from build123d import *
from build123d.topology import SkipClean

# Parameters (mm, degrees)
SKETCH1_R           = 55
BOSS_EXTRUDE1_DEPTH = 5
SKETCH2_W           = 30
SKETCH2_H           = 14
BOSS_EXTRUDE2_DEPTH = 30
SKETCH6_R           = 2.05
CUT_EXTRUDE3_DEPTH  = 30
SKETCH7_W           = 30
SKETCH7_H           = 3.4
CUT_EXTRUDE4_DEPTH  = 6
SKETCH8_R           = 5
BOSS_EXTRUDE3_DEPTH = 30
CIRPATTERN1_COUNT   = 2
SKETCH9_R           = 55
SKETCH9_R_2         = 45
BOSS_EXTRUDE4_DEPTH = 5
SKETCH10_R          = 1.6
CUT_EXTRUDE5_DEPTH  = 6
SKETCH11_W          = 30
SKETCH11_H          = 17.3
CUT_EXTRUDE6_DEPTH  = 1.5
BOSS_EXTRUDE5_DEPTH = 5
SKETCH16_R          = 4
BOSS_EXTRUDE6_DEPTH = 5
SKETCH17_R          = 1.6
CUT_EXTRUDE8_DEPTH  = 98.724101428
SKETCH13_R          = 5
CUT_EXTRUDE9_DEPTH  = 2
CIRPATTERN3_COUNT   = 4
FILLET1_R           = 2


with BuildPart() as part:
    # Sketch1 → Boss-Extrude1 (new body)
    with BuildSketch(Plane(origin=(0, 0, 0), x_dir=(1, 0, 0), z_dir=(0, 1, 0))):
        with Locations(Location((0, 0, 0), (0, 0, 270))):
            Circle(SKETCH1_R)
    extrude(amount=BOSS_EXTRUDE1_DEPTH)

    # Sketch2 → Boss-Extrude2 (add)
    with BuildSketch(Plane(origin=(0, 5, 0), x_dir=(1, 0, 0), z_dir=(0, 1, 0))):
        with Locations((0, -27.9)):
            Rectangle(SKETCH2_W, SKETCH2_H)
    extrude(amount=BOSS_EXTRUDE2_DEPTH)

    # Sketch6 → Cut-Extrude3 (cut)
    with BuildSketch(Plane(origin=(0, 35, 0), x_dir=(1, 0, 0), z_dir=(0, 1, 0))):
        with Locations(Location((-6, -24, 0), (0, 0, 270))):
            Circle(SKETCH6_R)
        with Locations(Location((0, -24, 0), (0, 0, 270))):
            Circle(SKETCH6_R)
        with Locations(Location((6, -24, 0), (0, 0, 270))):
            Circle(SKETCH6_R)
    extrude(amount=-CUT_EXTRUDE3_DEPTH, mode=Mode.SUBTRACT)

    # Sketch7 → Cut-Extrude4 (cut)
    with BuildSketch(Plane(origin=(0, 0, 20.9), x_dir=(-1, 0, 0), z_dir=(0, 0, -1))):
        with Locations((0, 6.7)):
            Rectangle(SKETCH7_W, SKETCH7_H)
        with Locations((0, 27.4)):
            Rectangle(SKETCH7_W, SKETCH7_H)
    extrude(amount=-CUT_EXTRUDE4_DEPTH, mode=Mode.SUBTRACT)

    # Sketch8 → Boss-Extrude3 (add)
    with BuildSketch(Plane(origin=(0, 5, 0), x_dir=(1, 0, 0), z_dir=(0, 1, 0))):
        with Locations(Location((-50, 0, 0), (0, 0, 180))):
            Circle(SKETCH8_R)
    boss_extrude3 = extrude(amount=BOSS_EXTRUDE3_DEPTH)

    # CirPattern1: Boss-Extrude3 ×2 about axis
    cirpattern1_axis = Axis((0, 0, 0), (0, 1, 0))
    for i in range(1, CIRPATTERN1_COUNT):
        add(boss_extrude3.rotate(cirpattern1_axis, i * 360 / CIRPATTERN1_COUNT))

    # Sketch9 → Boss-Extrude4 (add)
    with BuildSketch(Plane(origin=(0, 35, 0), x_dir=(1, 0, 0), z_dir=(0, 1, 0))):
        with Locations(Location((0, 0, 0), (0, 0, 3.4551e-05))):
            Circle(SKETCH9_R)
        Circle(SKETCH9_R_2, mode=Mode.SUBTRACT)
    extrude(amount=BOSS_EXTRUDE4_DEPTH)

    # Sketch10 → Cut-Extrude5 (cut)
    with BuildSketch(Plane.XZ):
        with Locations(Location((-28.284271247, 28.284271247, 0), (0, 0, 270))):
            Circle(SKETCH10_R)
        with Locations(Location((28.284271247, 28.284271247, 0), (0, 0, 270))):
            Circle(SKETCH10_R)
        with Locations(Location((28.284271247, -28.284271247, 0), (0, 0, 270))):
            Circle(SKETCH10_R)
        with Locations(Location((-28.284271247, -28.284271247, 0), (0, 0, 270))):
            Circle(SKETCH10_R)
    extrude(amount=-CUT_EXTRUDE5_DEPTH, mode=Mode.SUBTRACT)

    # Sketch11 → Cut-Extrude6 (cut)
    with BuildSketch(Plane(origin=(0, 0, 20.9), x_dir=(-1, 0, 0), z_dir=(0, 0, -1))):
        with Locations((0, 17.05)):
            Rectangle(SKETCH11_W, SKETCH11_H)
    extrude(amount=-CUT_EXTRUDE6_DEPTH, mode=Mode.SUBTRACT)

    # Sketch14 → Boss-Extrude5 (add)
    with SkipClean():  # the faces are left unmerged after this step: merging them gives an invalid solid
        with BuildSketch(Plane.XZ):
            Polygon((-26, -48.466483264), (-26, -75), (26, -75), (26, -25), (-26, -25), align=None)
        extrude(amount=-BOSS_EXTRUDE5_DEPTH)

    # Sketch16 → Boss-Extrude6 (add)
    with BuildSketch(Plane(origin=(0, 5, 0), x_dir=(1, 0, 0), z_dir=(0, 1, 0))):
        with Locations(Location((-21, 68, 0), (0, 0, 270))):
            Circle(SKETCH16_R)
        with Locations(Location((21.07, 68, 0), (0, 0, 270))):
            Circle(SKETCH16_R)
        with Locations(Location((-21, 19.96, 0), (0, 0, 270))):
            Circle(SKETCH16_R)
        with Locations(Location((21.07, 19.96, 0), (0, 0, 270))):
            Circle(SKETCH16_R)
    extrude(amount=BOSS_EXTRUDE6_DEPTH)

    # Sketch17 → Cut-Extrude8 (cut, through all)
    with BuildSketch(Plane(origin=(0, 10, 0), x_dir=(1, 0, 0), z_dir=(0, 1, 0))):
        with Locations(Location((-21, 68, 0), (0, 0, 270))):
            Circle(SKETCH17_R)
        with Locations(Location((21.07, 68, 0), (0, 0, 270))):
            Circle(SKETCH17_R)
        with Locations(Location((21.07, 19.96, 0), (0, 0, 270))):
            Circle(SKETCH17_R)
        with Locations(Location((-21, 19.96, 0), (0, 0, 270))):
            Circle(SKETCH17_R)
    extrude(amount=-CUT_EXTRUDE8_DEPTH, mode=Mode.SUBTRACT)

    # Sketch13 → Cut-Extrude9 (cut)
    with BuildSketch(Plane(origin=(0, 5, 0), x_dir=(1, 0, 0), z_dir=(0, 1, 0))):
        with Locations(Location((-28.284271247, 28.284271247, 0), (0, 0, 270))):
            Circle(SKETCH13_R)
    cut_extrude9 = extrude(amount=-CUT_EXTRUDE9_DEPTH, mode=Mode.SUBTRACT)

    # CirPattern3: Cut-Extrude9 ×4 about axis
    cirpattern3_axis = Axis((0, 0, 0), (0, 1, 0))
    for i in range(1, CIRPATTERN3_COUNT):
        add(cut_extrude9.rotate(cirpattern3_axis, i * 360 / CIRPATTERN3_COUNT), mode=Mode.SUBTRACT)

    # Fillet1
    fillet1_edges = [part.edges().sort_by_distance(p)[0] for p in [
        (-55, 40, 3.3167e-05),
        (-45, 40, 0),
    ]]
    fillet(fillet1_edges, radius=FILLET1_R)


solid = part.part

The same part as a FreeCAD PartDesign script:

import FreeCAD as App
import Part
import Sketcher


def edges_at(feature, points):
    """Names of the edges that pass closest to the given points."""
    edges = feature.Shape.Edges
    near = lambda p: min(range(len(edges)), key=lambda i: edges[i].distToShape(Part.Vertex(*p))[0])
    return sorted({f"Edge{near(p) + 1}" for p in points})


def add_polygon(sketch, points):
    """Adds a closed chain of lines whose ends are joined by coincident constraints."""
    first, n = sketch.GeometryCount, len(points)
    for a, b in zip(points, points[1:] + points[:1]):
        sketch.addGeometry(Part.LineSegment(App.Vector(*a, 0), App.Vector(*b, 0)), False)
    for i in range(n):
        sketch.addConstraint(Sketcher.Constraint("Coincident", first + i, 2, first + (i + 1) % n, 1))

doc = App.newDocument("Part")
body = doc.addObject("PartDesign::Body", "Body")

sketch1 = doc.addObject("Sketcher::SketchObject", "Sketch")
body.addObject(sketch1)
sketch1.AttachmentSupport = (doc.XZ_Plane, [""])
sketch1.MapMode = "FlatFace"
sketch1.addGeometry(Part.Circle(App.Vector(0, 0, 0), App.Vector(0, 0, 1), 55), False)
sketch1.addConstraint([
    Sketcher.Constraint("Coincident", 0, 3, -1, 1),
    Sketcher.Constraint("Diameter", 0, 110.0),
])
pad1 = doc.addObject("PartDesign::Pad", "Pad")
body.addObject(pad1)
pad1.Profile = sketch1
pad1.Length = 5
pad1.Reversed = True

sketch2 = doc.addObject("Sketcher::SketchObject", "Sketch001")
body.addObject(sketch2)
sketch2.AttachmentSupport = (doc.XZ_Plane, [""])
sketch2.MapMode = "FlatFace"
sketch2.AttachmentOffset = App.Placement(App.Vector(0, 0, -5), App.Rotation())
add_polygon(sketch2, [(-15, 21), (-15, 35), (15, 35), (15, 21)])
sketch2.addConstraint([
    Sketcher.Constraint("Vertical", 0),
    Sketcher.Constraint("Horizontal", 1),
    Sketcher.Constraint("Vertical", 2),
    Sketcher.Constraint("Horizontal", 3),
    Sketcher.Constraint("DistanceX", 1, 1, 1, 2, 30.0),
    Sketcher.Constraint("DistanceY", 0, 1, 0, 2, 14.0),
    Sketcher.Constraint("DistanceX", 0, 2, -1, 1, 15.0),
    Sketcher.Constraint("DistanceY", -1, 1, 0, 2, 34.9),
])
pad2 = doc.addObject("PartDesign::Pad", "Pad001")
body.addObject(pad2)
pad2.Profile = sketch2
pad2.Length = 30
pad2.Reversed = True

sketch3 = doc.addObject("Sketcher::SketchObject", "Sketch002")
body.addObject(sketch3)
sketch3.AttachmentSupport = (doc.XZ_Plane, [""])
sketch3.MapMode = "FlatFace"
sketch3.AttachmentOffset = App.Placement(App.Vector(0, 0, -35), App.Rotation())
sketch3.addGeometry([
    Part.Circle(App.Vector(-6, 24, 0), App.Vector(0, 0, 1), 2),
    Part.Circle(App.Vector(0, 24, 0), App.Vector(0, 0, 1), 2),
    Part.Circle(App.Vector(6, 24, 0), App.Vector(0, 0, 1), 2),
], False)
sketch3.addConstraint([
    Sketcher.Constraint("Equal", 0, 1),
    Sketcher.Constraint("Equal", 1, 2),
    Sketcher.Constraint("Symmetric", 0, 3, 2, 3, -2),
    Sketcher.Constraint("PointOnObject", 1, 3, -2),
    Sketcher.Constraint("Horizontal", 0, 3, 1, 3),
    Sketcher.Constraint("Diameter", 0, 4.1),
    Sketcher.Constraint("DistanceX", 0, 3, -1, 1, 6.0),
    Sketcher.Constraint("DistanceY", -1, 1, 0, 3, 24.0),
])
pocket1 = doc.addObject("PartDesign::Pocket", "Pocket")
body.addObject(pocket1)
pocket1.Profile = sketch3
pocket1.Length = 30
pocket1.Reversed = True

sketch4 = doc.addObject("Sketcher::SketchObject", "Sketch003")
body.addObject(sketch4)
sketch4.AttachmentSupport = (doc.XY_Plane, [""])
sketch4.MapMode = "FlatFace"
sketch4.AttachmentOffset = App.Placement(App.Vector(0, 0, 20.9), App.Rotation())
add_polygon(sketch4, [(15, 8.4), (15, 5), (-15, 5), (-15, 8.4)])
add_polygon(sketch4, [(15, 29.1), (15, 25.7), (-15, 25.7), (-15, 29.1)])
sketch4.addConstraint([
    Sketcher.Constraint("Vertical", 0),
    Sketcher.Constraint("Horizontal", 1),
    Sketcher.Constraint("Vertical", 2),
    Sketcher.Constraint("Horizontal", 3),
    Sketcher.Constraint("Vertical", 4),
    Sketcher.Constraint("Horizontal", 5),
    Sketcher.Constraint("Vertical", 6),
    Sketcher.Constraint("Horizontal", 7),
    Sketcher.Constraint("Vertical", 3, 2, 4, 2),
    Sketcher.Constraint("Vertical", 2, 2, 5, 2),
    Sketcher.Constraint("Equal", 2, 4),
    Sketcher.Constraint("DistanceX", 1, 2, 1, 1, 30.0),
    Sketcher.Constraint("DistanceY", 0, 2, 0, 1, 3.4),
    Sketcher.Constraint("DistanceX", -1, 1, 0, 2, 15.0),
    Sketcher.Constraint("DistanceY", -1, 1, 0, 2, 5.0),
    Sketcher.Constraint("DistanceY", -1, 1, 4, 2, 25.7),
])
pocket2 = doc.addObject("PartDesign::Pocket", "Pocket001")
body.addObject(pocket2)
pocket2.Profile = sketch4
pocket2.Length = 6
pocket2.Reversed = True

sketch5 = doc.addObject("Sketcher::SketchObject", "Sketch004")
body.addObject(sketch5)
sketch5.AttachmentSupport = (doc.XZ_Plane, [""])
sketch5.MapMode = "FlatFace"
sketch5.AttachmentOffset = App.Placement(App.Vector(0, 0, -5), App.Rotation())
sketch5.addGeometry(Part.Circle(App.Vector(-50, 0, 0), App.Vector(0, 0, 1), 5), False)
sketch5.addConstraint([
    Sketcher.Constraint("PointOnObject", 0, 3, -1),
    Sketcher.Constraint("Diameter", 0, 10.0),
    Sketcher.Constraint("DistanceX", 0, 3, -1, 1, 50.0),
])
pad3 = doc.addObject("PartDesign::Pad", "Pad002")
body.addObject(pad3)
pad3.Profile = sketch5
pad3.Length = 30
pad3.Reversed = True
doc.recompute()

polarpattern = doc.addObject("PartDesign::PolarPattern", "PolarPattern")
body.addObject(polarpattern)
polarpattern.Originals = [pad3]
polarpattern.Axis = (doc.Y_Axis, [""])
polarpattern.Angle = 360
polarpattern.Occurrences = 2
body.Tip = polarpattern

sketch6 = doc.addObject("Sketcher::SketchObject", "Sketch005")
body.addObject(sketch6)
sketch6.AttachmentSupport = (doc.XZ_Plane, [""])
sketch6.MapMode = "FlatFace"
sketch6.AttachmentOffset = App.Placement(App.Vector(0, 0, -35), App.Rotation())
sketch6.addGeometry([
    Part.Circle(App.Vector(0, 0, 0), App.Vector(0, 0, 1), 55),
    Part.Circle(App.Vector(0, 0, 0), App.Vector(0, 0, 1), 45),
], False)
sketch6.addConstraint([
    Sketcher.Constraint("Coincident", 0, 3, -1, 1),
    Sketcher.Constraint("Coincident", 1, 3, -1, 1),
    Sketcher.Constraint("Diameter", 0, 110.0),
    Sketcher.Constraint("Diameter", 1, 90.0),
])
pad4 = doc.addObject("PartDesign::Pad", "Pad003")
body.addObject(pad4)
pad4.Profile = sketch6
pad4.Length = 5
pad4.Reversed = True

sketch7 = doc.addObject("Sketcher::SketchObject", "Sketch006")
body.addObject(sketch7)
sketch7.AttachmentSupport = (doc.XZ_Plane, [""])
sketch7.MapMode = "FlatFace"
sketch7.addGeometry([
    Part.Circle(App.Vector(-28.3, 28.3, 0), App.Vector(0, 0, 1), 1.6),
    Part.Circle(App.Vector(28.3, 28.3, 0), App.Vector(0, 0, 1), 1.6),
    Part.Circle(App.Vector(28.3, -28.3, 0), App.Vector(0, 0, 1), 1.6),
    Part.Circle(App.Vector(-28.3, -28.3, 0), App.Vector(0, 0, 1), 1.6),
], False)
sketch7.addConstraint([
    Sketcher.Constraint("Equal", 0, 1),
    Sketcher.Constraint("Equal", 1, 2),
    Sketcher.Constraint("Equal", 2, 3),
    Sketcher.Constraint("Symmetric", 0, 3, 2, 3, -1, 1),
    Sketcher.Constraint("Symmetric", 1, 3, 3, 3, -1, 1),
    Sketcher.Constraint("Symmetric", 0, 3, 1, 3, -2),
    Sketcher.Constraint("Diameter", 0, 3.2),
    Sketcher.Constraint("DistanceX", 0, 3, -1, 1, 28.284271),
    Sketcher.Constraint("DistanceY", -1, 1, 0, 3, 28.284271),
])
pocket3 = doc.addObject("PartDesign::Pocket", "Pocket002")
body.addObject(pocket3)
pocket3.Profile = sketch7
pocket3.Length = 6

sketch8 = doc.addObject("Sketcher::SketchObject", "Sketch007")
body.addObject(sketch8)
sketch8.AttachmentSupport = (doc.XY_Plane, [""])
sketch8.MapMode = "FlatFace"
sketch8.AttachmentOffset = App.Placement(App.Vector(0, 0, 20.9), App.Rotation())
add_polygon(sketch8, [(15, 26), (15, 8), (-15, 8), (-15, 26)])
sketch8.addConstraint([
    Sketcher.Constraint("Vertical", 0),
    Sketcher.Constraint("Horizontal", 1),
    Sketcher.Constraint("Vertical", 2),
    Sketcher.Constraint("Horizontal", 3),
    Sketcher.Constraint("DistanceX", 1, 2, 1, 1, 30.0),
    Sketcher.Constraint("DistanceY", 0, 2, 0, 1, 17.3),
    Sketcher.Constraint("DistanceX", -1, 1, 0, 2, 15.0),
    Sketcher.Constraint("DistanceY", -1, 1, 0, 2, 8.4),
])
pocket4 = doc.addObject("PartDesign::Pocket", "Pocket003")
body.addObject(pocket4)
pocket4.Profile = sketch8
pocket4.Length = 1.5
pocket4.Reversed = True

sketch9 = doc.addObject("Sketcher::SketchObject", "Sketch008")
body.addObject(sketch9)
sketch9.AttachmentSupport = (doc.XZ_Plane, [""])
sketch9.MapMode = "FlatFace"
add_polygon(sketch9, [(-26, -75), (26, -75), (26, -25), (-26, -25)])
sketch9.addConstraint([
    Sketcher.Constraint("Horizontal", 0),
    Sketcher.Constraint("Vertical", 1),
    Sketcher.Constraint("Horizontal", 2),
    Sketcher.Constraint("Vertical", 3),
    Sketcher.Constraint("DistanceX", 0, 1, 0, 2, 52.0),
    Sketcher.Constraint("DistanceY", 1, 1, 1, 2, 50.0),
    Sketcher.Constraint("DistanceX", -1, 1, 0, 2, 26.0),
    Sketcher.Constraint("DistanceY", 0, 2, -1, 1, 75.0),
])
pad5 = doc.addObject("PartDesign::Pad", "Pad004")
body.addObject(pad5)
pad5.Profile = sketch9
pad5.Length = 5
pad5.Reversed = True

sketch10 = doc.addObject("Sketcher::SketchObject", "Sketch009")
body.addObject(sketch10)
sketch10.AttachmentSupport = (doc.XZ_Plane, [""])
sketch10.MapMode = "FlatFace"
sketch10.AttachmentOffset = App.Placement(App.Vector(0, 0, -5), App.Rotation())
sketch10.addGeometry([
    Part.Circle(App.Vector(-21, -68, 0), App.Vector(0, 0, 1), 4),
    Part.Circle(App.Vector(21.1, -68, 0), App.Vector(0, 0, 1), 4),
    Part.Circle(App.Vector(-21, -20, 0), App.Vector(0, 0, 1), 4),
    Part.Circle(App.Vector(21.1, -20, 0), App.Vector(0, 0, 1), 4),
], False)
sketch10.addConstraint([
    Sketcher.Constraint("Equal", 0, 1),
    Sketcher.Constraint("Equal", 1, 2),
    Sketcher.Constraint("Equal", 2, 3),
    Sketcher.Constraint("Horizontal", 0, 3, 1, 3),
    Sketcher.Constraint("Horizontal", 2, 3, 3, 3),
    Sketcher.Constraint("Vertical", 0, 3, 2, 3),
    Sketcher.Constraint("Vertical", 1, 3, 3, 3),
    Sketcher.Constraint("Diameter", 0, 8.0),
    Sketcher.Constraint("DistanceX", 0, 3, -1, 1, 21.0),
    Sketcher.Constraint("DistanceY", 0, 3, -1, 1, 68.0),
    Sketcher.Constraint("DistanceX", -1, 1, 1, 3, 21.07),
    Sketcher.Constraint("DistanceY", 2, 3, -1, 1, 19.96),
])
pad6 = doc.addObject("PartDesign::Pad", "Pad005")
body.addObject(pad6)
pad6.Profile = sketch10
pad6.Length = 5
pad6.Reversed = True

sketch11 = doc.addObject("Sketcher::SketchObject", "Sketch010")
body.addObject(sketch11)
sketch11.AttachmentSupport = (doc.XZ_Plane, [""])
sketch11.MapMode = "FlatFace"
sketch11.AttachmentOffset = App.Placement(App.Vector(0, 0, -10), App.Rotation())
sketch11.addGeometry([
    Part.Circle(App.Vector(-21, -68, 0), App.Vector(0, 0, 1), 1.6),
    Part.Circle(App.Vector(21.1, -68, 0), App.Vector(0, 0, 1), 1.6),
    Part.Circle(App.Vector(21.1, -20, 0), App.Vector(0, 0, 1), 1.6),
    Part.Circle(App.Vector(-21, -20, 0), App.Vector(0, 0, 1), 1.6),
], False)
sketch11.addConstraint([
    Sketcher.Constraint("Equal", 0, 1),
    Sketcher.Constraint("Equal", 1, 2),
    Sketcher.Constraint("Equal", 2, 3),
    Sketcher.Constraint("Horizontal", 0, 3, 1, 3),
    Sketcher.Constraint("Horizontal", 2, 3, 3, 3),
    Sketcher.Constraint("Vertical", 1, 3, 2, 3),
    Sketcher.Constraint("Vertical", 0, 3, 3, 3),
    Sketcher.Constraint("Diameter", 0, 3.2),
    Sketcher.Constraint("DistanceX", 0, 3, -1, 1, 21.0),
    Sketcher.Constraint("DistanceY", 0, 3, -1, 1, 68.0),
    Sketcher.Constraint("DistanceX", -1, 1, 1, 3, 21.07),
    Sketcher.Constraint("DistanceY", 2, 3, -1, 1, 19.96),
])
pocket5 = doc.addObject("PartDesign::Pocket", "Pocket004")
body.addObject(pocket5)
pocket5.Profile = sketch11
pocket5.Type = "ThroughAll"
pocket5.Reversed = True

sketch12 = doc.addObject("Sketcher::SketchObject", "Sketch011")
body.addObject(sketch12)
sketch12.AttachmentSupport = (doc.XZ_Plane, [""])
sketch12.MapMode = "FlatFace"
sketch12.AttachmentOffset = App.Placement(App.Vector(0, 0, -5), App.Rotation())
sketch12.addGeometry(Part.Circle(App.Vector(-28, -28, 0), App.Vector(0, 0, 1), 5), False)
sketch12.addConstraint([
    Sketcher.Constraint("Diameter", 0, 10.0),
    Sketcher.Constraint("DistanceX", 0, 3, -1, 1, 28.284271),
    Sketcher.Constraint("DistanceY", 0, 3, -1, 1, 28.284271),
])
pocket6 = doc.addObject("PartDesign::Pocket", "Pocket005")
body.addObject(pocket6)
pocket6.Profile = sketch12
pocket6.Length = 2
pocket6.Reversed = True
doc.recompute()

polarpattern2 = doc.addObject("PartDesign::PolarPattern", "PolarPattern001")
body.addObject(polarpattern2)
polarpattern2.Originals = [pocket6]
polarpattern2.Axis = (doc.Y_Axis, [""])
polarpattern2.Angle = 360
polarpattern2.Occurrences = 4
body.Tip = polarpattern2
doc.recompute()

fillet = doc.addObject("PartDesign::Fillet", "Fillet")
body.addObject(fillet)
fillet.Base = (polarpattern2, edges_at(polarpattern2, [(-55, 40, 0), (-45, 40, 0)]))
fillet.Radius = 2

doc.recompute()
